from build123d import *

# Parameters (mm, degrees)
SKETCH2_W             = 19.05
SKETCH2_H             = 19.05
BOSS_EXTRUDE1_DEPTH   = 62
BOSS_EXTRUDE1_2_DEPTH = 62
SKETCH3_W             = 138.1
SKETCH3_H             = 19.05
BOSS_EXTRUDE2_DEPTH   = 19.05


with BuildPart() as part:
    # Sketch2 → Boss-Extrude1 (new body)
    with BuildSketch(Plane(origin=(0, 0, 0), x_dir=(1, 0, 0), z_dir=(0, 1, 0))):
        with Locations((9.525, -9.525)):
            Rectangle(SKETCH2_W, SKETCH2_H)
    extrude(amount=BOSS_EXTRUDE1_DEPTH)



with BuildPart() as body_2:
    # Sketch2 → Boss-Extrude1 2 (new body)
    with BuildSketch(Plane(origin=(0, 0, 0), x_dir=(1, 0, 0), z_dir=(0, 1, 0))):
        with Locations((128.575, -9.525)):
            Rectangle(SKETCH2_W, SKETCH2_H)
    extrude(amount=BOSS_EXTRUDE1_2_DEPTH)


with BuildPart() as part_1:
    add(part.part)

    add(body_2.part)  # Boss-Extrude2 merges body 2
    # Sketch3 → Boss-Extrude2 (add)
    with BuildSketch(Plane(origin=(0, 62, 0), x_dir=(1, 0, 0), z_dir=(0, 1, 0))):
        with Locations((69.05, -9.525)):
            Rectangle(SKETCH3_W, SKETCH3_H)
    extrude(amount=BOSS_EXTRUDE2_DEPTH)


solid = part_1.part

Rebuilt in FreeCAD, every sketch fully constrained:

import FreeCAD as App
import Part
import Sketcher

V = App.Vector
Q = App.Units.Quantity

doc = App.newDocument("Part")
params = doc.addObject("Spreadsheet::Sheet", "Params")
for row, (alias, value) in enumerate([
    ("sketch1_width", "19.05 mm"),
    ("pad1_length", "62 mm"),
    ("sketch2_width", "19.05 mm"),
    ("pad2_length", "62 mm"),
    ("sketch3_width", "138.1 mm"),
    ("sketch3_height", "19.05 mm"),
    ("pad3_length", "19.05 mm"),
], start=1):
    params.set(f"A{row}", alias)
    params.set(f"B{row}", "=" + value)
    params.setAlias(f"B{row}", alias)

body = doc.addObject("PartDesign::Body", "Body")

# Sketch on XZ plane
sketch1 = body.newObject("Sketcher::SketchObject", "Sketch")
sketch1.AttachmentSupport = (doc.getObject("XZ_Plane"), [""])
sketch1.MapMode = "FlatFace"
sketch1.addGeometry(Part.LineSegment(V(0, 0, 0), V(0, 19.05, 0)), False)
sketch1.addGeometry(Part.LineSegment(V(0, 19.05, 0), V(19.05, 19.05, 0)), False)
sketch1.addGeometry(Part.LineSegment(V(19.05, 19.05, 0), V(19.05, 0, 0)), False)
sketch1.addGeometry(Part.LineSegment(V(19.05, 0, 0), V(0, 0, 0)), False)
sketch1.addConstraint(Sketcher.Constraint("Coincident", 0, 2, 1, 1))
sketch1.addConstraint(Sketcher.Constraint("Coincident", 1, 2, 2, 1))
sketch1.addConstraint(Sketcher.Constraint("Coincident", 2, 2, 3, 1))
sketch1.addConstraint(Sketcher.Constraint("Coincident", 3, 2, 0, 1))
sketch1.addConstraint(Sketcher.Constraint("Vertical", 0))
sketch1.addConstraint(Sketcher.Constraint("Horizontal", 1))
sketch1.addConstraint(Sketcher.Constraint("Vertical", 2))
sketch1.addConstraint(Sketcher.Constraint("Horizontal", 3))
sketch1.addConstraint(Sketcher.Constraint("Coincident", 3, 2, -1, 1))
sketch1.addConstraint(Sketcher.Constraint("Equal", 3, 0))
sketch1.addConstraint(Sketcher.Constraint("DistanceX", 1, 1, 1, 2, Q("19.05 mm")))
sketch1.setExpression("Constraints[10]", "Params.sketch1_width")
pad1 = body.newObject("PartDesign::Pad", "Pad")
pad1.Profile = sketch1
pad1.setExpression("Length", "Params.pad1_length")
pad1.Reversed = True
body2 = doc.addObject("PartDesign::Body", "Body001")

# Sketch on XZ plane
sketch2 = body2.newObject("Sketcher::SketchObject", "Sketch001")
sketch2.AttachmentSupport = (doc.getObject("XZ_Plane001"), [""])
sketch2.MapMode = "FlatFace"
sketch2.addGeometry(Part.LineSegment(V(119.05, 0, 0), V(119.05, 19.05, 0)), False)
sketch2.addGeometry(Part.LineSegment(V(119.05, 19.05, 0), V(138.1, 19.05, 0)), False)
sketch2.addGeometry(Part.LineSegment(V(138.1, 19.05, 0), V(138.1, 0, 0)), False)
sketch2.addGeometry(Part.LineSegment(V(138.1, 0, 0), V(119.05, 0, 0)), False)
sketch2.addConstraint(Sketcher.Constraint("Coincident", 0, 2, 1, 1))
sketch2.addConstraint(Sketcher.Constraint("Coincident", 1, 2, 2, 1))
sketch2.addConstraint(Sketcher.Constraint("Coincident", 2, 2, 3, 1))
sketch2.addConstraint(Sketcher.Constraint("Coincident", 3, 2, 0, 1))
sketch2.addConstraint(Sketcher.Constraint("Vertical", 0))
sketch2.addConstraint(Sketcher.Constraint("Horizontal", 1))
sketch2.addConstraint(Sketcher.Constraint("Vertical", 2))
sketch2.addConstraint(Sketcher.Constraint("Horizontal", 3))
sketch2.addConstraint(Sketcher.Constraint("PointOnObject", 2, 2, -1))
sketch2.addConstraint(Sketcher.Constraint("Equal", 3, 0))
sketch2.addConstraint(Sketcher.Constraint("DistanceX", 1, 1, 1, 2, Q("19.05 mm")))
sketch2.addConstraint(Sketcher.Constraint("DistanceX", -1, 1, 1, 2, Q("138.1 mm")))
sketch2.setExpression("Constraints[10]", "Params.sketch2_width")
pad2 = body2.newObject("PartDesign::Pad", "Pad001")
pad2.Profile = sketch2
pad2.setExpression("Length", "Params.pad2_length")
pad2.Reversed = True
body.AllowCompound = True
doc.recompute()

boolean = body.newObject("PartDesign::Boolean", "Boolean")
boolean.Type = "Fuse"
boolean.addObjects([body2])

# Sketch on XZ plane
sketch3 = body.newObject("Sketcher::SketchObject", "Sketch002")
sketch3.AttachmentSupport = (doc.getObject("XZ_Plane"), [""])
sketch3.MapMode = "FlatFace"
sketch3.AttachmentOffset = App.Placement(V(0, 0, -62), App.Rotation())
sketch3.addGeometry(Part.LineSegment(V(0, 0, 0), V(0, 19.05, 0)), False)
sketch3.addGeometry(Part.LineSegment(V(0, 19.05, 0), V(138.1, 19.05, 0)), False)
sketch3.addGeometry(Part.LineSegment(V(138.1, 19.05, 0), V(138.1, 0, 0)), False)
sketch3.addGeometry(Part.LineSegment(V(138.1, 0, 0), V(0, 0, 0)), False)
sketch3.addConstraint(Sketcher.Constraint("Coincident", 0, 2, 1, 1))
sketch3.addConstraint(Sketcher.Constraint("Coincident", 1, 2, 2, 1))
sketch3.addConstraint(Sketcher.Constraint("Coincident", 2, 2, 3, 1))
sketch3.addConstraint(Sketcher.Constraint("Coincident", 3, 2, 0, 1))
sketch3.addConstraint(Sketcher.Constraint("Vertical", 0))
sketch3.addConstraint(Sketcher.Constraint("Horizontal", 1))
sketch3.addConstraint(Sketcher.Constraint("Vertical", 2))
sketch3.addConstraint(Sketcher.Constraint("Horizontal", 3))
sketch3.addConstraint(Sketcher.Constraint("Coincident", 3, 2, -1, 1))
sketch3.addConstraint(Sketcher.Constraint("DistanceX", 1, 1, 1, 2, Q("138.1 mm")))
sketch3.addConstraint(Sketcher.Constraint("DistanceY", 0, 1, 0, 2, Q("19.05 mm")))
sketch3.setExpression("Constraints[9]", "Params.sketch3_width")
sketch3.setExpression("Constraints[10]", "Params.sketch3_height")
pad3 = body.newObject("PartDesign::Pad", "Pad002")
pad3.Profile = sketch3
pad3.setExpression("Length", "Params.pad3_length")
pad3.Reversed = True

doc.recompute()
